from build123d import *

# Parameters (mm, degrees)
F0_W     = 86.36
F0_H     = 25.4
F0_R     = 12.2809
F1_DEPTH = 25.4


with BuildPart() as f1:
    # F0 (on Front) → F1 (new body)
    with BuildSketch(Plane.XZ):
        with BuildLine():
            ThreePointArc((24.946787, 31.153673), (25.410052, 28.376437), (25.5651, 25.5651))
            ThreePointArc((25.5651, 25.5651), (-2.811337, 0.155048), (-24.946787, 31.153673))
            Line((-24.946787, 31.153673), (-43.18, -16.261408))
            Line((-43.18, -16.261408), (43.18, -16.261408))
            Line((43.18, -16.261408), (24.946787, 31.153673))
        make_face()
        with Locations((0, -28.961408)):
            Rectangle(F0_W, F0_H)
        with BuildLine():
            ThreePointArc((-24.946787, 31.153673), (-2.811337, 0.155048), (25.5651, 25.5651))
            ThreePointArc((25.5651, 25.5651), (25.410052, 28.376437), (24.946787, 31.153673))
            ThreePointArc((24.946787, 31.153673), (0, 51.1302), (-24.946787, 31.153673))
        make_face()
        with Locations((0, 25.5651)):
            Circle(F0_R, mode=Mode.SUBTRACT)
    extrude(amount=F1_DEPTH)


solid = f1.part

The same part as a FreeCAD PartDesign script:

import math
import FreeCAD as App
import Part
import Sketcher
from FreeCAD import Vector
Q = App.Units.Quantity

doc = App.newDocument("Part")
body = doc.addObject("PartDesign::Body", "Body")

# Sketch on XZ plane
sketch1 = doc.addObject("Sketcher::SketchObject", "Sketch")
body.addObject(sketch1)
sketch1.AttachmentSupport = (doc.XZ_Plane, [""])
sketch1.MapMode = "FlatFace"
sketch1.addGeometry([
    Part.LineSegment(Vector(-25, 31, 0), Vector(-43, -16, 0)),  # 0
    Part.LineSegment(Vector(-43, -16, 0), Vector(-43, -42, 0)),  # 1
    Part.LineSegment(Vector(-43, -42, 0), Vector(43, -42, 0)),  # 2
    Part.LineSegment(Vector(43, -42, 0), Vector(43, -16, 0)),  # 3
    Part.LineSegment(Vector(43, -16, 0), Vector(25, 31, 0)),  # 4
    Part.ArcOfCircle(Part.Circle(Vector(0, 26, 0), Vector(0, 0, 1), 26), math.radians(13), math.radians(167)),  # 5
    Part.Circle(Vector(0, 26, 0), Vector(0, 0, 1), 12),  # 6
], False)
sketch1.addConstraint([
    Sketcher.Constraint("Coincident", 0, 2, 1, 1),
    Sketcher.Constraint("Coincident", 1, 2, 2, 1),
    Sketcher.Constraint("Coincident", 2, 2, 3, 1),
    Sketcher.Constraint("Coincident", 3, 2, 4, 1),
    Sketcher.Constraint("Coincident", 4, 2, 5, 1),
    Sketcher.Constraint("Coincident", 5, 2, 0, 1),
    Sketcher.Constraint("Vertical", 1),
    Sketcher.Constraint("Horizontal", 2),
    Sketcher.Constraint("Vertical", 3),
    Sketcher.Constraint("Coincident", 6, 3, 5, 3),
    Sketcher.Constraint("Symmetric", 0, 2, 3, 2, -2),
    Sketcher.Constraint("Symmetric", 4, 2, 5, 2, -2),
    Sketcher.Constraint("DistanceY", 1, 2, 1, 1, Q("1 in")),
    Sketcher.Constraint("Distance", 0, Q("2 in")),
    Sketcher.Constraint("Diameter", 6, Q("0.967 in")),
    Sketcher.Constraint("DistanceX", 2, 1, 2, 2, Q("3.4 in")),
    Sketcher.Constraint("Radius", 5, Q("1.0065 in")),
    Sketcher.Constraint("DistanceY", -1, 1, 5, 3, Q("1.0065 in")),
    Sketcher.Constraint("DistanceY", 1, 2, -1, 1, 41.661408),
])
pad1 = doc.addObject("PartDesign::Pad", "Pad")
body.addObject(pad1)
pad1.Profile = sketch1
pad1.Length = Q("1 in")

doc.recompute()
